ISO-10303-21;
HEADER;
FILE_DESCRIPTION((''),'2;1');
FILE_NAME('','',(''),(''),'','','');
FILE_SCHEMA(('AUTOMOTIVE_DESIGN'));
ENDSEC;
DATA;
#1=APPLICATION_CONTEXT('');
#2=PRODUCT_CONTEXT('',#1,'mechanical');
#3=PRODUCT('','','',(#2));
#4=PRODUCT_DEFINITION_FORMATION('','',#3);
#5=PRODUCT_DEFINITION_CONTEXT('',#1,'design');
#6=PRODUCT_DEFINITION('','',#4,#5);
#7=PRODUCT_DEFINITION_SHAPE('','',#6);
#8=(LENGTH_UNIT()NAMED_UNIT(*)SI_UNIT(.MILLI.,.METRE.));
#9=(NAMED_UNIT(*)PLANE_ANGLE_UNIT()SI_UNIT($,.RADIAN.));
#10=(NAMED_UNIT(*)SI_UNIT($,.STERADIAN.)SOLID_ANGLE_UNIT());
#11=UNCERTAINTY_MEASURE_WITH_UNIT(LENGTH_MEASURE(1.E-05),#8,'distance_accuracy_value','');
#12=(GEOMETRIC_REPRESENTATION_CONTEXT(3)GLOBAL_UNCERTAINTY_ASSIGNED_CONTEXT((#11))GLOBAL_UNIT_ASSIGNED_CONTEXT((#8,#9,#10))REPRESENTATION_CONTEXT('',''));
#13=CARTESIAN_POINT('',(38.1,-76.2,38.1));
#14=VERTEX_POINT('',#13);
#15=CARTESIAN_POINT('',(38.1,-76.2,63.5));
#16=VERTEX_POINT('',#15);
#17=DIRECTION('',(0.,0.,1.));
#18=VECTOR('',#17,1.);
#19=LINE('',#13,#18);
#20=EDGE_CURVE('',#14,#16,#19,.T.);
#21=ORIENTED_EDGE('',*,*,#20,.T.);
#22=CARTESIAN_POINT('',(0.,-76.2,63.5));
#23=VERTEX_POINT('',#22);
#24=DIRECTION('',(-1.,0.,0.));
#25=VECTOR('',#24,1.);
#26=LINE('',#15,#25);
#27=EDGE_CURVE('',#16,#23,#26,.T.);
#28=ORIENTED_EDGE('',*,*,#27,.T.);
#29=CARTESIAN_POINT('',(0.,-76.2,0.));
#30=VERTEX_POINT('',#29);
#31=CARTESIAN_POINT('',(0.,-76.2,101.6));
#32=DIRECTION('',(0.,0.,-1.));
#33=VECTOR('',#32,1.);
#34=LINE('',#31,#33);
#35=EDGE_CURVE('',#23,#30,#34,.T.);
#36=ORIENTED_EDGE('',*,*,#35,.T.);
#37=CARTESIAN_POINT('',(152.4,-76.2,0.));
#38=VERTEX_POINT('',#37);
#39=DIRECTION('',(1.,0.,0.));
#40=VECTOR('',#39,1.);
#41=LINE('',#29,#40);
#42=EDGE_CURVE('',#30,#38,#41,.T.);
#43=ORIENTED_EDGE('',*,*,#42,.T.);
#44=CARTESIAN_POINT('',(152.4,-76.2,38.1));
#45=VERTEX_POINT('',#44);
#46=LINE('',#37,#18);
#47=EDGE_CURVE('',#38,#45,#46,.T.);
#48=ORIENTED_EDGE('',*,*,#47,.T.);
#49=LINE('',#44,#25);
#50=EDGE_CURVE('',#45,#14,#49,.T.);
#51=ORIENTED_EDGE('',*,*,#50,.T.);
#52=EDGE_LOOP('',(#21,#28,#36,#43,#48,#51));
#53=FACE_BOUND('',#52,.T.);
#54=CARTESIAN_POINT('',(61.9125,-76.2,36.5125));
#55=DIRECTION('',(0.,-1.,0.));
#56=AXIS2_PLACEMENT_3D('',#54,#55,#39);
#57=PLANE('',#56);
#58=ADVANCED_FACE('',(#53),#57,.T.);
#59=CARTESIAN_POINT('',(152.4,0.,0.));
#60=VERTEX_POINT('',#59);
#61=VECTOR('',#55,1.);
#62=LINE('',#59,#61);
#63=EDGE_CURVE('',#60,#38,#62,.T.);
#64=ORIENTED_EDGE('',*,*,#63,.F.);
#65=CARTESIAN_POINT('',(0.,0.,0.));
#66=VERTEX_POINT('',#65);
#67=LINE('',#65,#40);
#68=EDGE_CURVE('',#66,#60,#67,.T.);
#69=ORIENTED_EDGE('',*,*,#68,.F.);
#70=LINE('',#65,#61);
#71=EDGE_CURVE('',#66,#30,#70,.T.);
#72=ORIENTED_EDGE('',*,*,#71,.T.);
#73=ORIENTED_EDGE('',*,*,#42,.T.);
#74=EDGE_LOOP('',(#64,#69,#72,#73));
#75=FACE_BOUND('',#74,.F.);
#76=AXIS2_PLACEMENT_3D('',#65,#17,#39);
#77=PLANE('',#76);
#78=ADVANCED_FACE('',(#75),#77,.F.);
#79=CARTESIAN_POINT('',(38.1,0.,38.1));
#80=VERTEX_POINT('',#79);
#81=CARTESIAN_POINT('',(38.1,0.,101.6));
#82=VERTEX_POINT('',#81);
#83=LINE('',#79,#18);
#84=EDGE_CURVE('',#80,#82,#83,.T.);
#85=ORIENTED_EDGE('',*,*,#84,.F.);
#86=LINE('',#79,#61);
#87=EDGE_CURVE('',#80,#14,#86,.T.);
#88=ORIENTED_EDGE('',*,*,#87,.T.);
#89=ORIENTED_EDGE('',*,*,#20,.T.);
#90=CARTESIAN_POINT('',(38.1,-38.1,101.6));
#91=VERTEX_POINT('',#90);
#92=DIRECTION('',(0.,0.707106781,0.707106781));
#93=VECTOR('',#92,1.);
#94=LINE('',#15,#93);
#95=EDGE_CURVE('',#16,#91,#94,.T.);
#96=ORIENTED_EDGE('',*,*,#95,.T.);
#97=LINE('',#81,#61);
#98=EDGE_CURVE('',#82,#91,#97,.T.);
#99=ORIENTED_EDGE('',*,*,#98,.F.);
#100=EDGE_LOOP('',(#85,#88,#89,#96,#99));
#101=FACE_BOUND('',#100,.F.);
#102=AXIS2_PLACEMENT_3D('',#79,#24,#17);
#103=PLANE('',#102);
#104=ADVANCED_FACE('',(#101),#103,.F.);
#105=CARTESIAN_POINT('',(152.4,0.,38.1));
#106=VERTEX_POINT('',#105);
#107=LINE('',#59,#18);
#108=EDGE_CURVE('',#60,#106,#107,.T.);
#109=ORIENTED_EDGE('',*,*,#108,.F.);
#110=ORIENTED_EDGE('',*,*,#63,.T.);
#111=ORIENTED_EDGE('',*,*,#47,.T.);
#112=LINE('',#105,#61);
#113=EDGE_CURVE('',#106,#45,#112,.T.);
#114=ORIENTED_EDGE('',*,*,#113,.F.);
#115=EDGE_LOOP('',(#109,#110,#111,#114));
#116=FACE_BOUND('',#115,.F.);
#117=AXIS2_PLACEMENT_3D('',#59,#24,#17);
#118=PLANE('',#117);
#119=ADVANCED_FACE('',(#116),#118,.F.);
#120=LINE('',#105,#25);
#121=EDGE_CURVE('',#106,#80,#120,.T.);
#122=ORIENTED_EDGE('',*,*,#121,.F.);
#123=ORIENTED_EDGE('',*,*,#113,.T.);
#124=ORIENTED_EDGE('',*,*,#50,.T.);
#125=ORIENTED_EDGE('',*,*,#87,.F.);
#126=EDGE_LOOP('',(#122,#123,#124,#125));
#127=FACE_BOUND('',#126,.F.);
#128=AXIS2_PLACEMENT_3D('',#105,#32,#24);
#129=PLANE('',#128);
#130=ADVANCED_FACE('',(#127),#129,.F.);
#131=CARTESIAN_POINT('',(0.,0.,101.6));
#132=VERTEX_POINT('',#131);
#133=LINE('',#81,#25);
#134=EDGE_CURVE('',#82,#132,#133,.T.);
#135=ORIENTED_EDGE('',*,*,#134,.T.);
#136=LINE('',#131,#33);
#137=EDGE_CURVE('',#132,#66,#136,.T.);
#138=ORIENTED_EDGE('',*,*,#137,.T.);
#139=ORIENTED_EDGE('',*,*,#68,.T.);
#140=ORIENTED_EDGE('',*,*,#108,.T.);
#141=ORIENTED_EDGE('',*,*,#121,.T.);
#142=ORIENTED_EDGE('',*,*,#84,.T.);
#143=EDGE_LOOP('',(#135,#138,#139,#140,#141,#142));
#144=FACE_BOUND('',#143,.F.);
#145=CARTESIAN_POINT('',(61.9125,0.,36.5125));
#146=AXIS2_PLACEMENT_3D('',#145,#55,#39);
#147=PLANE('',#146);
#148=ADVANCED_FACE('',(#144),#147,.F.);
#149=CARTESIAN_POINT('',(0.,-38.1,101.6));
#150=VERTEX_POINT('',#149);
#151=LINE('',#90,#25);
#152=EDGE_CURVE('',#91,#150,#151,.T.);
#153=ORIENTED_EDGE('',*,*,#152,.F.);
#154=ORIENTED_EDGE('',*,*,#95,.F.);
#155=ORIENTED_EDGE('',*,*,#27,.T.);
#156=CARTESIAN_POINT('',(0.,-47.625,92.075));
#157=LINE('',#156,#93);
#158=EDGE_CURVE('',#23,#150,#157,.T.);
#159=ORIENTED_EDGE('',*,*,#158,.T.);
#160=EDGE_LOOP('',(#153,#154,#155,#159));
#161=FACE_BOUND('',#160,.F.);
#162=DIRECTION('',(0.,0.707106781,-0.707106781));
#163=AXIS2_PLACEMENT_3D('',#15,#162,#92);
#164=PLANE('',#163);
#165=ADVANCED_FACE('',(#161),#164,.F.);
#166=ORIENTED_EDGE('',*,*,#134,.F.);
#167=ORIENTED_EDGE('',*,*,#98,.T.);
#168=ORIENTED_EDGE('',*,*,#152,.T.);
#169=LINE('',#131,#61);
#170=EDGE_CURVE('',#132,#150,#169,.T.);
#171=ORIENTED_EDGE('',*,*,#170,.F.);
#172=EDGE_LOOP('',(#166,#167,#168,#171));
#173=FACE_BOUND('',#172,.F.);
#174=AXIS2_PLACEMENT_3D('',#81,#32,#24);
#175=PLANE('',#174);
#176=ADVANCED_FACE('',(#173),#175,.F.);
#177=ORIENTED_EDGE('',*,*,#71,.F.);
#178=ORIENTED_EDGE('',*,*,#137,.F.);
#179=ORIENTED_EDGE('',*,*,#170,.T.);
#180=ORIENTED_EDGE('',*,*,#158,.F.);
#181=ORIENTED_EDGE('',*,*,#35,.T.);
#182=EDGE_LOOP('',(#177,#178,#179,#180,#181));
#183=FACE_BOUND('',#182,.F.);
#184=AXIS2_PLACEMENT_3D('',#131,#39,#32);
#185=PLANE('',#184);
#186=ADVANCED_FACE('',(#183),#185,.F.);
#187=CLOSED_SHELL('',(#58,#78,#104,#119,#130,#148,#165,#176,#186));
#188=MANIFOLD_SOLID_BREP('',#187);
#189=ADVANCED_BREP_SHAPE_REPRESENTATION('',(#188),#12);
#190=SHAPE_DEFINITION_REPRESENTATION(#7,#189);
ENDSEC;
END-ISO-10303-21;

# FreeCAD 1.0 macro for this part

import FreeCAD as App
import Part
import Sketcher

V = App.Vector
Q = App.Units.Quantity


def add_polygon(sketch, points):
    """Adds a closed chain of lines whose ends are joined by coincident constraints."""
    first, n = sketch.GeometryCount, len(points)
    for a, b in zip(points, points[1:] + points[:1]):
        sketch.addGeometry(Part.LineSegment(App.Vector(*a, 0), App.Vector(*b, 0)), False)
    for i in range(n):
        sketch.addConstraint(Sketcher.Constraint("Coincident", first + i, 2, first + (i + 1) % n, 1))

doc = App.newDocument("Part")
body = doc.addObject("PartDesign::Body", "Body")

# Sketch on XZ plane
sketch1 = body.newObject("Sketcher::SketchObject", "Sketch")
sketch1.AttachmentSupport = (doc.getObject("XZ_Plane"), [""])
sketch1.MapMode = "FlatFace"
add_polygon(sketch1, [(0, 101.6), (0, 0), (152.4, 0), (152.4, 38.1), (38.1, 38.1), (38.1, 101.6)])  # lines 0-5
sketch1.addConstraint(Sketcher.Constraint("Vertical", 0))
sketch1.addConstraint(Sketcher.Constraint("Horizontal", 1))
sketch1.addConstraint(Sketcher.Constraint("Vertical", 2))
sketch1.addConstraint(Sketcher.Constraint("Horizontal", 3))
sketch1.addConstraint(Sketcher.Constraint("Vertical", 4))
sketch1.addConstraint(Sketcher.Constraint("Horizontal", 5))
sketch1.addConstraint(Sketcher.Constraint("Coincident", 0, 2, -1, 1))
sketch1.addConstraint(Sketcher.Constraint("Equal", 5, 2))
sketch1.addConstraint(Sketcher.Constraint("DistanceX", 1, 1, 1, 2, Q("6 in")))
sketch1.addConstraint(Sketcher.Constraint("DistanceY", 0, 2, 0, 1, Q("4 in")))
sketch1.addConstraint(Sketcher.Constraint("DistanceX", 3, 2, 3, 1, Q("4.5 in")))
pad1 = body.newObject("PartDesign::Pad", "Pad")
pad1.Profile = sketch1
pad1.Length = Q("3 in")

# Sketch on YZ plane
sketch2 = body.newObject("Sketcher::SketchObject", "Sketch001")
sketch2.AttachmentSupport = (doc.getObject("YZ_Plane"), [""])
sketch2.MapMode = "FlatFace"
sketch2.AttachmentOffset = App.Placement(V(0, 0, 1.5 * 25.4), App.Rotation())
add_polygon(sketch2, [(-76.2, 63.5), (-38.1, 101.6), (-76.2, 101.6)])  # lines 0-2
sketch2.addConstraint(Sketcher.Constraint("Horizontal", 1))
sketch2.addConstraint(Sketcher.Constraint("Vertical", 2))
sketch2.addConstraint(Sketcher.Constraint("Equal", 1, 2))
sketch2.addConstraint(Sketcher.Constraint("DistanceX", 1, 2, 1, 1, Q("1.5 in")))
sketch2.addConstraint(Sketcher.Constraint("DistanceY", -1, 1, 0, 2, Q("4 in")))
sketch2.addConstraint(Sketcher.Constraint("DistanceX", 1, 2, -1, 1, Q("3 in")))
pocket1 = body.newObject("PartDesign::Pocket", "Pocket")
pocket1.Profile = sketch2
pocket1.Length = Q("1.8 in")

doc.recompute()
